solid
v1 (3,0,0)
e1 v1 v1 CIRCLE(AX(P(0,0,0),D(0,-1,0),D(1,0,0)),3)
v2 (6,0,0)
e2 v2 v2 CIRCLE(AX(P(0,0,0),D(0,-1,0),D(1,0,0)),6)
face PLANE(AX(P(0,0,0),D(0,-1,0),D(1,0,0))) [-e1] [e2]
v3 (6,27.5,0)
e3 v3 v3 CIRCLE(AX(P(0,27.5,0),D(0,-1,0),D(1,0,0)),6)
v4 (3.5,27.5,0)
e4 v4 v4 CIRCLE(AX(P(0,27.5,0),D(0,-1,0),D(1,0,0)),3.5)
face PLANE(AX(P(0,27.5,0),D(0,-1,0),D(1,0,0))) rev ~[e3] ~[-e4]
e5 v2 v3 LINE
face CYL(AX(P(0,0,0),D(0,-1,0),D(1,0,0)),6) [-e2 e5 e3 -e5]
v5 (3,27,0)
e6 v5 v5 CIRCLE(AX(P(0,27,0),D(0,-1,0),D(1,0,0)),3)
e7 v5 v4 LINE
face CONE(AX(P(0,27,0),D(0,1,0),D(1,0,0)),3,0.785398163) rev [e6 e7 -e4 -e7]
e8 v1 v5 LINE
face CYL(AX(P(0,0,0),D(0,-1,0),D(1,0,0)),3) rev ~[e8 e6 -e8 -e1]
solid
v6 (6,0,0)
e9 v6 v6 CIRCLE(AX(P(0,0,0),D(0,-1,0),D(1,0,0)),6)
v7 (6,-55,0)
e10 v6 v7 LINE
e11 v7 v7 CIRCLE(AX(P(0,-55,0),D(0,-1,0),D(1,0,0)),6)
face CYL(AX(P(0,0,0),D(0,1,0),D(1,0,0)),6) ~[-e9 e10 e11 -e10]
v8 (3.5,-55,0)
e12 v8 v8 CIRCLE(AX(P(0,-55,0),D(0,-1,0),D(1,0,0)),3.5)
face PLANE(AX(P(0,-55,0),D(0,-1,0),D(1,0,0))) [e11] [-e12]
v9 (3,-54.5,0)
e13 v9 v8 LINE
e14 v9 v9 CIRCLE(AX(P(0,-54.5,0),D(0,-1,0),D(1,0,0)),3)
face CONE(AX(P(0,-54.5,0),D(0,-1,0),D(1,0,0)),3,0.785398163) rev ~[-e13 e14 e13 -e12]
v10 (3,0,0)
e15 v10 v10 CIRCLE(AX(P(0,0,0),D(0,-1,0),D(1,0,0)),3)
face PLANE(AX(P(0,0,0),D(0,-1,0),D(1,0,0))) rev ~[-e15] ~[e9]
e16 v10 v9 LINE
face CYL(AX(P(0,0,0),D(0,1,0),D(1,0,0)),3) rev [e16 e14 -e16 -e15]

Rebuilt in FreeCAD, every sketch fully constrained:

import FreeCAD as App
import Part
import Sketcher


def edges_at(feature, points):
    """Names of the edges that pass closest to the given points."""
    edges = feature.Shape.Edges
    near = lambda p: min(range(len(edges)), key=lambda i: edges[i].distToShape(Part.Vertex(*p))[0])
    return sorted({f"Edge{near(p) + 1}" for p in points})

doc = App.newDocument("Part")
params = doc.addObject("Spreadsheet::Sheet", "Params")
for row, (alias, value) in enumerate([
    ("sketch1_diameter", "12 mm"),
    ("sketch1_diameter2", "6 mm"),
    ("pad1_length", "55 mm"),
    ("chamfer_size", "0.5 mm"),
    ("sketch2_diameter", "12 mm"),
    ("sketch2_diameter2", "6 mm"),
    ("pad2_length", "27.5 mm"),
    ("chamfer2_size", "0.5 mm"),
], start=1):
    params.set(f"A{row}", alias)
    params.set(f"B{row}", "=" + value)
    params.setAlias(f"B{row}", alias)

body = doc.addObject("PartDesign::Body", "Body")

# Sketch on XZ plane
sketch1 = body.newObject("Sketcher::SketchObject", "Sketch")
sketch1.AttachmentSupport = (doc.getObject("XZ_Plane"), [""])
sketch1.MapMode = "FlatFace"
sketch1.addGeometry(Part.Circle(App.Vector(0, 0, 0), App.Vector(0, 0, 1), 6), False)
sketch1.addGeometry(Part.Circle(App.Vector(0, 0, 0), App.Vector(0, 0, 1), 3), False)
sketch1.addConstraint(Sketcher.Constraint("Coincident", 0, 3, -1, 1))
sketch1.addConstraint(Sketcher.Constraint("Coincident", 1, 3, -1, 1))
sketch1.addConstraint(Sketcher.Constraint("Diameter", 0, 12.0))
sketch1.addConstraint(Sketcher.Constraint("Diameter", 1, 6.0))
sketch1.setExpression("Constraints[2]", "Params.sketch1_diameter")
sketch1.setExpression("Constraints[3]", "Params.sketch1_diameter2")
pad1 = body.newObject("PartDesign::Pad", "Pad")
pad1.Profile = sketch1
pad1.setExpression("Length", "Params.pad1_length")
doc.recompute()

chamfer = body.newObject("PartDesign::Chamfer", "Chamfer")
chamfer.Base = (pad1, edges_at(pad1, [(-3, -55, 0)]))
chamfer.setExpression("Size", "Params.chamfer_size")
body2 = doc.addObject("PartDesign::Body", "Body001")

# Sketch on XZ plane
sketch2 = body2.newObject("Sketcher::SketchObject", "Sketch001")
sketch2.AttachmentSupport = (doc.getObject("XZ_Plane001"), [""])
sketch2.MapMode = "FlatFace"
sketch2.addGeometry(Part.Circle(App.Vector(0, 0, 0), App.Vector(0, 0, 1), 6), False)
sketch2.addGeometry(Part.Circle(App.Vector(0, 0, 0), App.Vector(0, 0, 1), 3), False)
sketch2.addConstraint(Sketcher.Constraint("Coincident", 0, 3, -1, 1))
sketch2.addConstraint(Sketcher.Constraint("Coincident", 1, 3, -1, 1))
sketch2.addConstraint(Sketcher.Constraint("Diameter", 0, 12.0))
sketch2.addConstraint(Sketcher.Constraint("Diameter", 1, 6.0))
sketch2.setExpression("Constraints[2]", "Params.sketch2_diameter")
sketch2.setExpression("Constraints[3]", "Params.sketch2_diameter2")
pad2 = body2.newObject("PartDesign::Pad", "Pad001")
pad2.Profile = sketch2
pad2.setExpression("Length", "Params.pad2_length")
pad2.Reversed = True
doc.recompute()

chamfer2 = body2.newObject("PartDesign::Chamfer", "Chamfer001")
chamfer2.Base = (pad2, edges_at(pad2, [(-3, 27.5, 0)]))
chamfer2.setExpression("Size", "Params.chamfer2_size")

doc.recompute()
